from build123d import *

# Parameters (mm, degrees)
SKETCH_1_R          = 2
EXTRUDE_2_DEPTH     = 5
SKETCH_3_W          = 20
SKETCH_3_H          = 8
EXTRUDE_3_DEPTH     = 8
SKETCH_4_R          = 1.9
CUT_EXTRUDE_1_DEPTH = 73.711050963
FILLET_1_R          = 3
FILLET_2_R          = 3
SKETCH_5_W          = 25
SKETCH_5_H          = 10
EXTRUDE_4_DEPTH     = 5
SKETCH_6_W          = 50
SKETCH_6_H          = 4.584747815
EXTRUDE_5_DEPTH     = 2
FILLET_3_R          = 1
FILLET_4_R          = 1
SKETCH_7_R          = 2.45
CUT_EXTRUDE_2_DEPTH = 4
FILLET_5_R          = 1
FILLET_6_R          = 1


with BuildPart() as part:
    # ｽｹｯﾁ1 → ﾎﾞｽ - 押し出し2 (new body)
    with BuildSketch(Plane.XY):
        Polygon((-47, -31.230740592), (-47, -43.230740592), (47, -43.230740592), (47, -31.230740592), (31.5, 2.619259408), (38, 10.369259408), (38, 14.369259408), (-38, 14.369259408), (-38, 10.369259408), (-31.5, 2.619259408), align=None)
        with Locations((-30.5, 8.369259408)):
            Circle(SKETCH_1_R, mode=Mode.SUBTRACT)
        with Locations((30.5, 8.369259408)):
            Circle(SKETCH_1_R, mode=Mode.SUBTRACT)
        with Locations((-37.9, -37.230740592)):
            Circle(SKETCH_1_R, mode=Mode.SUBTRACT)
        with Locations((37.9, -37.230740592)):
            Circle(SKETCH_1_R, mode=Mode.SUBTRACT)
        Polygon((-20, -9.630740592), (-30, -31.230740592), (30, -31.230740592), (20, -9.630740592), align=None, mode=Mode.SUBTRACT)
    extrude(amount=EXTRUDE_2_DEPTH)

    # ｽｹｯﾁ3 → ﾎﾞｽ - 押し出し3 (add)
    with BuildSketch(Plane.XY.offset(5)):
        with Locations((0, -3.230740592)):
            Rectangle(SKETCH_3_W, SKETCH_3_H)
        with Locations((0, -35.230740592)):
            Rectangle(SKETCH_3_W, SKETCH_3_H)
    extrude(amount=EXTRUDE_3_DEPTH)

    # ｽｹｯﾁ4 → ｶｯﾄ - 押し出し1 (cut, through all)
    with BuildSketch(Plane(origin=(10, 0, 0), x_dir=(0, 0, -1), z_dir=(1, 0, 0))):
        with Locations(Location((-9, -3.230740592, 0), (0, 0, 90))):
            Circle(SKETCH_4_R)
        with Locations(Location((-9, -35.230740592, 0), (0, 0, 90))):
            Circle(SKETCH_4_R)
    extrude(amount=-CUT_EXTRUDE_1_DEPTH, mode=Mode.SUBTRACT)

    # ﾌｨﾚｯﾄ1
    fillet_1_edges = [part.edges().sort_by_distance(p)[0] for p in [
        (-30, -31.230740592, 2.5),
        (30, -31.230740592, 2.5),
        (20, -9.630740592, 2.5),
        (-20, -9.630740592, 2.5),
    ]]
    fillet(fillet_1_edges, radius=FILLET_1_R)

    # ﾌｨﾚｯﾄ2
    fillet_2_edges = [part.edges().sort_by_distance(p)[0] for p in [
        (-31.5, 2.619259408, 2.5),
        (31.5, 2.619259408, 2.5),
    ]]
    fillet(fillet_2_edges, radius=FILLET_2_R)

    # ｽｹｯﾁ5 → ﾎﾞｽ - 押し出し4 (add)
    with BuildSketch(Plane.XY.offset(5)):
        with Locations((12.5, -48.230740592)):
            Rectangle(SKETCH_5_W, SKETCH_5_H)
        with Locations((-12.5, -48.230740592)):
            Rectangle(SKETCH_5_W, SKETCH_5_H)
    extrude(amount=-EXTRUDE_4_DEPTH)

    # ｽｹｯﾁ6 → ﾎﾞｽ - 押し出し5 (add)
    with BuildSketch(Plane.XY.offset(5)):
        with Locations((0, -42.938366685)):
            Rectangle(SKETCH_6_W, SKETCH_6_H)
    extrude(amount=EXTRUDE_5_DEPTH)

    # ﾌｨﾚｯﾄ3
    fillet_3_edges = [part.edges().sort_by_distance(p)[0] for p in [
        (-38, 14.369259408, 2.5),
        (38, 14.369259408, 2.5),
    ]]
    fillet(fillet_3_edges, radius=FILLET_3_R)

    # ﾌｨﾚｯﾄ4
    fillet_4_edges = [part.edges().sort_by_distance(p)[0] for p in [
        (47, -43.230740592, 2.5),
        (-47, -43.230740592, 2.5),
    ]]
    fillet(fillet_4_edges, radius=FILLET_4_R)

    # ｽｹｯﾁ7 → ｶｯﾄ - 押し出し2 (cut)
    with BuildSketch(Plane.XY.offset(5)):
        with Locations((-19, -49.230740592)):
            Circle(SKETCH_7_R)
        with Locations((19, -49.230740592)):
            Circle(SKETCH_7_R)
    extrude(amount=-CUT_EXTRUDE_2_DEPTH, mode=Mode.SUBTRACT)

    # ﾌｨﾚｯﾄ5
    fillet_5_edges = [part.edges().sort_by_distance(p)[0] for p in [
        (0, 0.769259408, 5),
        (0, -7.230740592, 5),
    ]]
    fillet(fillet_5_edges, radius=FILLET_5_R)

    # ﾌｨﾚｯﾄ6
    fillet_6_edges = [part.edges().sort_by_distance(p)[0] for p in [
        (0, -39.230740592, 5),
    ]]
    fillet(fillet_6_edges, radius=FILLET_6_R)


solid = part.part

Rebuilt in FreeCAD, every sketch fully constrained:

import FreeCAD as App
import Part
import Sketcher

V = App.Vector
Q = App.Units.Quantity


def edges_at(feature, points):
    """Names of the edges that pass closest to the given points."""
    edges = feature.Shape.Edges
    near = lambda p: min(range(len(edges)), key=lambda i: edges[i].distToShape(Part.Vertex(*p))[0])
    return sorted({f"Edge{near(p) + 1}" for p in points})


def add_polygon(sketch, points):
    """Adds a closed chain of lines whose ends are joined by coincident constraints."""
    first, n = sketch.GeometryCount, len(points)
    for a, b in zip(points, points[1:] + points[:1]):
        sketch.addGeometry(Part.LineSegment(App.Vector(*a, 0), App.Vector(*b, 0)), False)
    for i in range(n):
        sketch.addConstraint(Sketcher.Constraint("Coincident", first + i, 2, first + (i + 1) % n, 1))

doc = App.newDocument("Part")
body = doc.addObject("PartDesign::Body", "Body")

sketch1 = body.newObject("Sketcher::SketchObject", "Sketch")
sketch1.AttachmentSupport = (doc.getObject("XY_Plane"), [""])
sketch1.MapMode = "FlatFace"
add_polygon(sketch1, [(-47, -31.2), (-47, -43.2), (47, -43.2), (47, -31.2), (31.5, 2.6), (38, 10.4), (38, 14.4), (-38, 14.4), (-38, 10.4), (-31.5, 2.6)])
sketch1.addGeometry(Part.Circle(V(-37.9, -37.2, 0), V(0, 0, 1), 2), False)
sketch1.addGeometry(Part.Circle(V(37.9, -37.2, 0), V(0, 0, 1), 2), False)
add_polygon(sketch1, [(-30, -31.2), (-20, -9.6), (20, -9.6), (30, -31.2)])
sketch1.addGeometry(Part.Circle(V(-30.5, 8.4, 0), V(0, 0, 1), 2), False)
sketch1.addGeometry(Part.Circle(V(30.5, 8.4, 0), V(0, 0, 1), 2), False)
sketch1.addConstraint(Sketcher.Constraint("Vertical", 0))
sketch1.addConstraint(Sketcher.Constraint("Horizontal", 1))
sketch1.addConstraint(Sketcher.Constraint("Vertical", 2))
sketch1.addConstraint(Sketcher.Constraint("Vertical", 5))
sketch1.addConstraint(Sketcher.Constraint("Horizontal", 6))
sketch1.addConstraint(Sketcher.Constraint("Vertical", 7))
sketch1.addConstraint(Sketcher.Constraint("Horizontal", 13))
sketch1.addConstraint(Sketcher.Constraint("Horizontal", 15))
sketch1.addConstraint(Sketcher.Constraint("Equal", 10, 11))
sketch1.addConstraint(Sketcher.Constraint("Equal", 11, 16))
sketch1.addConstraint(Sketcher.Constraint("Equal", 16, 17))
sketch1.addConstraint(Sketcher.Constraint("Symmetric", 10, 3, 11, 3, -2))
sketch1.addConstraint(Sketcher.Constraint("Symmetric", 16, 3, 17, 3, -2))
sketch1.addConstraint(Sketcher.Constraint("Symmetric", 4, 2, 7, 2, -2))
sketch1.addConstraint(Sketcher.Constraint("Symmetric", 3, 2, 8, 2, -2))
sketch1.addConstraint(Sketcher.Constraint("Symmetric", 2, 2, 9, 2, -2))
sketch1.addConstraint(Sketcher.Constraint("Horizontal", 9, 2, 14, 2))
sketch1.addConstraint(Sketcher.Constraint("Equal", 12, 14))
sketch1.addConstraint(Sketcher.Constraint("Diameter", 10, Q("4 mm")))
sketch1.addConstraint(Sketcher.Constraint("DistanceX", 1, 1, 1, 2, Q("94 mm")))
sketch1.addConstraint(Sketcher.Constraint("DistanceX", 6, 2, 6, 1, Q("76 mm")))
sketch1.addConstraint(Sketcher.Constraint("DistanceX", 13, 1, 13, 2, Q("40 mm")))
sketch1.addConstraint(Sketcher.Constraint("DistanceX", 15, 2, 15, 1, Q("60 mm")))
sketch1.addConstraint(Sketcher.Constraint("DistanceY", 0, 2, 0, 1, Q("12 mm")))
sketch1.addConstraint(Sketcher.Constraint("DistanceY", 5, 1, 5, 2, Q("4 mm")))
sketch1.addConstraint(Sketcher.Constraint("DistanceX", 12, 2, -1, 1, Q("20 mm")))
sketch1.addConstraint(Sketcher.Constraint("DistanceX", 16, 3, 17, 3, Q("61 mm")))
sketch1.addConstraint(Sketcher.Constraint("DistanceY", 0, 2, 10, 3, Q("6 mm")))
sketch1.addConstraint(Sketcher.Constraint("DistanceX", 17, 3, 3, 2, Q("1 mm")))
sketch1.addConstraint(Sketcher.Constraint("DistanceY", 17, 3, 4, 2, Q("2 mm")))
sketch1.addConstraint(Sketcher.Constraint("DistanceY", 12, 2, 16, 3, Q("18 mm")))
sketch1.addConstraint(Sketcher.Constraint("DistanceX", 10, 3, -1, 1, Q("37.9 mm")))
sketch1.addConstraint(Sketcher.Constraint("DistanceY", 10, 3, 16, 3, Q("45.6 mm")))
sketch1.addConstraint(Sketcher.Constraint("DistanceY", 3, 2, 17, 3, Q("5.75 mm")))
sketch1.addConstraint(Sketcher.Constraint("DistanceY", 10, 3, -1, 1, Q("37.230741 mm")))
pad1 = body.newObject("PartDesign::Pad", "Pad")
pad1.Profile = sketch1
pad1.Length = 5

sketch2 = body.newObject("Sketcher::SketchObject", "Sketch001")
sketch2.AttachmentSupport = (doc.getObject("XY_Plane"), [""])
sketch2.MapMode = "FlatFace"
sketch2.AttachmentOffset = App.Placement(V(0, 0, 5), App.Rotation())
add_polygon(sketch2, [(-10, 1), (-10, -7), (10, -7), (10, 1)])
add_polygon(sketch2, [(-10, -31), (-10, -39), (10, -39), (10, -31)])
sketch2.addConstraint(Sketcher.Constraint("Vertical", 0))
sketch2.addConstraint(Sketcher.Constraint("Horizontal", 1))
sketch2.addConstraint(Sketcher.Constraint("Vertical", 2))
sketch2.addConstraint(Sketcher.Constraint("Horizontal", 3))
sketch2.addConstraint(Sketcher.Constraint("Vertical", 4))
sketch2.addConstraint(Sketcher.Constraint("Horizontal", 5))
sketch2.addConstraint(Sketcher.Constraint("Vertical", 6))
sketch2.addConstraint(Sketcher.Constraint("Horizontal", 7))
sketch2.addConstraint(Sketcher.Constraint("Vertical", 3, 2, 4, 2))
sketch2.addConstraint(Sketcher.Constraint("Vertical", 2, 2, 5, 2))
sketch2.addConstraint(Sketcher.Constraint("Equal", 2, 4))
sketch2.addConstraint(Sketcher.Constraint("DistanceX", 1, 1, 1, 2, Q("20 mm")))
sketch2.addConstraint(Sketcher.Constraint("DistanceY", 0, 2, 0, 1, Q("8 mm")))
sketch2.addConstraint(Sketcher.Constraint("DistanceX", 0, 2, -1, 1, Q("10 mm")))
sketch2.addConstraint(Sketcher.Constraint("DistanceY", 4, 2, 0, 2, Q("32 mm")))
sketch2.addConstraint(Sketcher.Constraint("DistanceY", 0, 2, -1, 1, Q("7.230741 mm")))
pad2 = body.newObject("PartDesign::Pad", "Pad001")
pad2.Profile = sketch2
pad2.Length = 8

sketch3 = body.newObject("Sketcher::SketchObject", "Sketch002")
sketch3.AttachmentSupport = (doc.getObject("YZ_Plane"), [""])
sketch3.MapMode = "FlatFace"
sketch3.AttachmentOffset = App.Placement(V(0, 0, 10), App.Rotation())
sketch3.addGeometry(Part.Circle(V(-3.2, 9, 0), V(0, 0, 1), 1.9), False)
sketch3.addGeometry(Part.Circle(V(-35.2, 9, 0), V(0, 0, 1), 1.9), False)
sketch3.addConstraint(Sketcher.Constraint("Equal", 0, 1))
sketch3.addConstraint(Sketcher.Constraint("Horizontal", 0, 3, 1, 3))
sketch3.addConstraint(Sketcher.Constraint("Diameter", 0, Q("3.8 mm")))
sketch3.addConstraint(Sketcher.Constraint("DistanceY", -1, 1, 0, 3, Q("9 mm")))
sketch3.addConstraint(Sketcher.Constraint("DistanceX", 1, 3, 0, 3, Q("32 mm")))
sketch3.addConstraint(Sketcher.Constraint("DistanceX", 0, 3, -1, 1, Q("3.230741 mm")))
pocket1 = body.newObject("PartDesign::Pocket", "Pocket")
pocket1.Profile = sketch3
pocket1.Type = "ThroughAll"
doc.recompute()

fillet = body.newObject("PartDesign::Fillet", "Fillet")
fillet.Base = (pocket1, edges_at(pocket1, [
    (-30, -31.231, 2.5),
    (30, -31.231, 2.5),
    (20, -9.631, 2.5),
    (-20, -9.631, 2.5),
]))
fillet.Radius = 3
doc.recompute()

fillet2 = body.newObject("PartDesign::Fillet", "Fillet001")
fillet2.Base = (fillet, edges_at(fillet, [(-31.5, 2.619, 2.5), (31.5, 2.619, 2.5)]))
fillet2.Radius = 3

sketch4 = body.newObject("Sketcher::SketchObject", "Sketch003")
sketch4.AttachmentSupport = (doc.getObject("XY_Plane"), [""])
sketch4.MapMode = "FlatFace"
sketch4.AttachmentOffset = App.Placement(V(0, 0, 5), App.Rotation())
add_polygon(sketch4, [(25, -53), (25, -43), (-25, -43), (-25, -53)])
sketch4.addConstraint(Sketcher.Constraint("Vertical", 0))
sketch4.addConstraint(Sketcher.Constraint("Horizontal", 1))
sketch4.addConstraint(Sketcher.Constraint("Vertical", 2))
sketch4.addConstraint(Sketcher.Constraint("Horizontal", 3))
sketch4.addConstraint(Sketcher.Constraint("DistanceX", 1, 2, 1, 1, Q("50 mm")))
sketch4.addConstraint(Sketcher.Constraint("DistanceY", 0, 1, 0, 2, Q("10 mm")))
sketch4.addConstraint(Sketcher.Constraint("DistanceX", -1, 1, 0, 2, Q("25 mm")))
sketch4.addConstraint(Sketcher.Constraint("DistanceY", 0, 2, -1, 1, Q("43.230741 mm")))
pad3 = body.newObject("PartDesign::Pad", "Pad002")
pad3.Profile = sketch4
pad3.Length = 5
pad3.Reversed = True

sketch5 = body.newObject("Sketcher::SketchObject", "Sketch004")
sketch5.AttachmentSupport = (doc.getObject("XY_Plane"), [""])
sketch5.MapMode = "FlatFace"
sketch5.AttachmentOffset = App.Placement(V(0, 0, 5), App.Rotation())
add_polygon(sketch5, [(-25, -40.6), (-25, -45.2), (25, -45.2), (25, -40.6)])
sketch5.addConstraint(Sketcher.Constraint("Vertical", 0))
sketch5.addConstraint(Sketcher.Constraint("Horizontal", 1))
sketch5.addConstraint(Sketcher.Constraint("Vertical", 2))
sketch5.addConstraint(Sketcher.Constraint("Horizontal", 3))
sketch5.addConstraint(Sketcher.Constraint("DistanceX", 1, 1, 1, 2, Q("50 mm")))
sketch5.addConstraint(Sketcher.Constraint("DistanceX", 0, 2, -1, 1, Q("25 mm")))
sketch5.addConstraint(Sketcher.Constraint("DistanceY", 0, 2, 0, 1, Q("4.584748 mm")))
sketch5.addConstraint(Sketcher.Constraint("DistanceY", 0, 2, -1, 1, Q("45.230741 mm")))
pad4 = body.newObject("PartDesign::Pad", "Pad003")
pad4.Profile = sketch5
pad4.Length = 2
doc.recompute()

fillet3 = body.newObject("PartDesign::Fillet", "Fillet002")
fillet3.Base = (pad4, edges_at(pad4, [(-38, 14.369, 2.5), (38, 14.369, 2.5)]))
fillet3.Radius = 1
doc.recompute()

fillet4 = body.newObject("PartDesign::Fillet", "Fillet003")
fillet4.Base = (fillet3, edges_at(fillet3, [(47, -43.231, 2.5), (-47, -43.231, 2.5)]))
fillet4.Radius = 1

sketch6 = body.newObject("Sketcher::SketchObject", "Sketch005")
sketch6.AttachmentSupport = (doc.getObject("XY_Plane"), [""])
sketch6.MapMode = "FlatFace"
sketch6.AttachmentOffset = App.Placement(V(0, 0, 5), App.Rotation())
sketch6.addGeometry(Part.Circle(V(-19, -49.2, 0), V(0, 0, 1), 2.5), False)
sketch6.addGeometry(Part.Circle(V(19, -49.2, 0), V(0, 0, 1), 2.5), False)
sketch6.addConstraint(Sketcher.Constraint("Equal", 0, 1))
sketch6.addConstraint(Sketcher.Constraint("Symmetric", 0, 3, 1, 3, -2))
sketch6.addConstraint(Sketcher.Constraint("Diameter", 0, Q("4.9 mm")))
sketch6.addConstraint(Sketcher.Constraint("DistanceX", 0, 3, -1, 1, Q("19 mm")))
sketch6.addConstraint(Sketcher.Constraint("DistanceY", 0, 3, -1, 1, Q("49.230741 mm")))
pocket2 = body.newObject("PartDesign::Pocket", "Pocket001")
pocket2.Profile = sketch6
pocket2.Length = 4
doc.recompute()

fillet5 = body.newObject("PartDesign::Fillet", "Fillet004")
fillet5.Base = (pocket2, edges_at(pocket2, [(0, 0.769, 5), (0, -7.231, 5)]))
fillet5.Radius = 1
doc.recompute()

fillet6 = body.newObject("PartDesign::Fillet", "Fillet005")
fillet6.Base = (fillet5, edges_at(fillet5, [(0, -39.231, 5)]))
fillet6.Radius = 1

doc.recompute()
